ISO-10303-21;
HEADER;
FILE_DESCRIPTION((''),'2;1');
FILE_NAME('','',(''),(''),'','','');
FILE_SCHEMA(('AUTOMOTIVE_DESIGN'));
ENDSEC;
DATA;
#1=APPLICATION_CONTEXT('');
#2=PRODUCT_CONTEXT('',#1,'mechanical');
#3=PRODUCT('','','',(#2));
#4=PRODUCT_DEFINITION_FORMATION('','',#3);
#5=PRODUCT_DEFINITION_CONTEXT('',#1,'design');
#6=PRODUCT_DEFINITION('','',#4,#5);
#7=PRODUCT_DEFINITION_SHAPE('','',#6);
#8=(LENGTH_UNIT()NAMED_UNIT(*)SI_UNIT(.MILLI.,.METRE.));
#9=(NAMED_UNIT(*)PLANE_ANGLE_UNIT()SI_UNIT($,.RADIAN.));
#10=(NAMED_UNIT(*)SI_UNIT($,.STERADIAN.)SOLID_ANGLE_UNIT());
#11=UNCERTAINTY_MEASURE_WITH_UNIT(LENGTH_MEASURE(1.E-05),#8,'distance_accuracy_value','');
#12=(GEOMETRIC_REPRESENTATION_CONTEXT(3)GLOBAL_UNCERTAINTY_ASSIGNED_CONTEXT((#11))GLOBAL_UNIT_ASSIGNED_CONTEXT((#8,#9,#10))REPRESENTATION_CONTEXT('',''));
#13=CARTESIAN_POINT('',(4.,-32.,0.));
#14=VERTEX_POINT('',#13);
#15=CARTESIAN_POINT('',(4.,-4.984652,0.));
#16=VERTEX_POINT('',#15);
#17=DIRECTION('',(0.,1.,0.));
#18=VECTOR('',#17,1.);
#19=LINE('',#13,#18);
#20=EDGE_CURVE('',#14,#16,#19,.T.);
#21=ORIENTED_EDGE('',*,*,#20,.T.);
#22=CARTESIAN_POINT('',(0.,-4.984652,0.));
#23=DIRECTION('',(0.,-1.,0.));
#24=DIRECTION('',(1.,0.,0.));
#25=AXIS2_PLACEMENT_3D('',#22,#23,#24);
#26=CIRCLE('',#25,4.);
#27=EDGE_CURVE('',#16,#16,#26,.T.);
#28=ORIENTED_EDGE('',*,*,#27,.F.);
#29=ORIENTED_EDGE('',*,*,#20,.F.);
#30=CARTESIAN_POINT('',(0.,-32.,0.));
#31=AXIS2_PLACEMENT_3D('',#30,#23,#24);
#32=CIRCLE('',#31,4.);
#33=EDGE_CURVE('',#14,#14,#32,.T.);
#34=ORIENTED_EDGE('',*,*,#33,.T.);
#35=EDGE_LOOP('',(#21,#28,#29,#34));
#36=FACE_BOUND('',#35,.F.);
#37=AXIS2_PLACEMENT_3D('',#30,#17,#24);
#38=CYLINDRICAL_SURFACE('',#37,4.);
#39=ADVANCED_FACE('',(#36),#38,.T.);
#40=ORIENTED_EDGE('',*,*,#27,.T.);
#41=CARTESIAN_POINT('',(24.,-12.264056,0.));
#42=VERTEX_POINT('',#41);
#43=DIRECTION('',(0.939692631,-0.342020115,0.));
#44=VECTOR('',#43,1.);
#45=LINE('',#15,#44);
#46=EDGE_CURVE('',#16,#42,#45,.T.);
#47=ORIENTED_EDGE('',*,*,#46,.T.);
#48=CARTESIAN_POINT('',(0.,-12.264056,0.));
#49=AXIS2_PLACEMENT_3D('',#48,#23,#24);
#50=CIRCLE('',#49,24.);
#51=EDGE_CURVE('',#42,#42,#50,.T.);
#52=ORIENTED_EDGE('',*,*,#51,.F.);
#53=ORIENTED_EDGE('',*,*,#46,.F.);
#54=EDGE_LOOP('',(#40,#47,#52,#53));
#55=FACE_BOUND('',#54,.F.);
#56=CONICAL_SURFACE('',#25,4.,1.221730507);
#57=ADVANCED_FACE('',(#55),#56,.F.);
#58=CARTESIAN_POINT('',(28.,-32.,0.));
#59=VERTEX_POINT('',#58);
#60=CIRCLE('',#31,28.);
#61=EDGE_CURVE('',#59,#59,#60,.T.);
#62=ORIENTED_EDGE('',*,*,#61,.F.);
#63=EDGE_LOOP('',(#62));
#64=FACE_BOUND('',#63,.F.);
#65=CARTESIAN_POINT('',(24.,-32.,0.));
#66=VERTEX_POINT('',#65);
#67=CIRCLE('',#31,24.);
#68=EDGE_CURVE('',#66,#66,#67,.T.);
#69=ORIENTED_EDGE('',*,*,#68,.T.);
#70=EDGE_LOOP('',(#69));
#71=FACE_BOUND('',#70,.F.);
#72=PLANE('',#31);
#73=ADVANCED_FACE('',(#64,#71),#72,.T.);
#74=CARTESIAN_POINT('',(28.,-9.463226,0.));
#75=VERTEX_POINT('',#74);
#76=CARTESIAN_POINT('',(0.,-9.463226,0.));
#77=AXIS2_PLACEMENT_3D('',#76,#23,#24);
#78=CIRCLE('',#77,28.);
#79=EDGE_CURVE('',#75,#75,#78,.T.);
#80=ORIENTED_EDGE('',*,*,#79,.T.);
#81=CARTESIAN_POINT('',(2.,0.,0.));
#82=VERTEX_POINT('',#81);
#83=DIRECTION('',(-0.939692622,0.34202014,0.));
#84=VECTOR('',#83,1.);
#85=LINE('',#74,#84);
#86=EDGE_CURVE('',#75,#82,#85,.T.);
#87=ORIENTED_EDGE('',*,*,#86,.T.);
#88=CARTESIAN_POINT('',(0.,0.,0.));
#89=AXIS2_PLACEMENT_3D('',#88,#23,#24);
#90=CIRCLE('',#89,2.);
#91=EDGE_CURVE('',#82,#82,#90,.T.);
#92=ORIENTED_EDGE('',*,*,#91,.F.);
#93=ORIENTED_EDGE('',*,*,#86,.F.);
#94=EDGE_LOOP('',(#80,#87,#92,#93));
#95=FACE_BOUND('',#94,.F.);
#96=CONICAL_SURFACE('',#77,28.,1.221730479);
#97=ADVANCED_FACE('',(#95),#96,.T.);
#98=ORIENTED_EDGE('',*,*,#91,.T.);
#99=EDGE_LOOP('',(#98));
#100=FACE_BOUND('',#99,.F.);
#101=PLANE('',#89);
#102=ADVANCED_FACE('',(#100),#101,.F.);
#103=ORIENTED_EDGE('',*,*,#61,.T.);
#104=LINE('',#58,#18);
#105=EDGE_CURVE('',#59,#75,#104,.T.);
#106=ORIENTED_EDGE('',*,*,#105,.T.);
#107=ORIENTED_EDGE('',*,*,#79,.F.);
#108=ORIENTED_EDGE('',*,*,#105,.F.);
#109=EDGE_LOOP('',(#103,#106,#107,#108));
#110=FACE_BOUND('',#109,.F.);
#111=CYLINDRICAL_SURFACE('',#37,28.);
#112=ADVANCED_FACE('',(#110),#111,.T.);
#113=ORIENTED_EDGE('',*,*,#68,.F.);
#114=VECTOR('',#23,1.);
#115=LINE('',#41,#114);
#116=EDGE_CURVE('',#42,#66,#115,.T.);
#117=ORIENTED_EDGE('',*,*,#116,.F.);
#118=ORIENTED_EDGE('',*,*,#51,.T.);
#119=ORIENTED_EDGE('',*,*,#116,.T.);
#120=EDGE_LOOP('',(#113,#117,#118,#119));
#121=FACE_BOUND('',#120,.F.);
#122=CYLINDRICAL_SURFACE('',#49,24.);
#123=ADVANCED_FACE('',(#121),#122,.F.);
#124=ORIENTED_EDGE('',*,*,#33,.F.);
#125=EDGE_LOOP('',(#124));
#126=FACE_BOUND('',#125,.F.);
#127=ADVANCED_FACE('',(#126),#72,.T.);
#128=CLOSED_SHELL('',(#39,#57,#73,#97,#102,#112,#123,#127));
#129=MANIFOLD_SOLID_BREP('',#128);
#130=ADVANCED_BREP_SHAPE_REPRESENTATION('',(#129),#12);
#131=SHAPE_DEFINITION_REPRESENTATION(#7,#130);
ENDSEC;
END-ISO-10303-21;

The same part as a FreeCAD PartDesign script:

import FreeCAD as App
import Part
import Sketcher
from FreeCAD import Vector
Q = App.Units.Quantity


def add_polygon(sketch, points):
    """Adds a closed chain of lines whose ends are joined by coincident constraints."""
    first, n = sketch.GeometryCount, len(points)
    for a, b in zip(points, points[1:] + points[:1]):
        sketch.addGeometry(Part.LineSegment(App.Vector(*a, 0), App.Vector(*b, 0)), False)
    for i in range(n):
        sketch.addConstraint(Sketcher.Constraint("Coincident", first + i, 2, first + (i + 1) % n, 1))

doc = App.newDocument("Part")
params = doc.addObject("Spreadsheet::Sheet", "Params")
for row, (alias, value) in enumerate([
    ("sketch1_width", "2 mm"),
    ("sketch1_width2", "4 mm"),
    ("sketch1_height", "32 mm"),
    ("revolution_angle", "360 deg"),
], start=1):
    params.set(f"A{row}", alias)
    params.set(f"B{row}", "=" + value)
    params.setAlias(f"B{row}", alias)

body = doc.addObject("PartDesign::Body", "Body")

sketch1 = body.newObject("Sketcher::SketchObject", "Sketch")
sketch1.AttachmentSupport = (doc.getObject("XY_Plane"), [""])
sketch1.MapMode = "FlatFace"
add_polygon(sketch1, [(2, 0), (0, 0), (0, -32), (4, -32), (4, -4.984652), (24, -12.264056), (24, -32), (28, -32), (28, -9.463226)])
sketch1.addConstraint([
    Sketcher.Constraint("Horizontal", 0),
    Sketcher.Constraint("Vertical", 1),
    Sketcher.Constraint("Horizontal", 2),
    Sketcher.Constraint("Vertical", 3),
    Sketcher.Constraint("Vertical", 5),
    Sketcher.Constraint("Horizontal", 6),
    Sketcher.Constraint("Vertical", 7),
    Sketcher.Constraint("Coincident", 0, 2, -1, 1),
    Sketcher.Constraint("Parallel", 4, 8),
    Sketcher.Constraint("Horizontal", 2, 2, 5, 2),
    Sketcher.Constraint("Equal", 2, 6),
    Sketcher.Constraint("DistanceX", 0, 2, 0, 1, 2.0),
    Sketcher.Constraint("DistanceX", 2, 1, 2, 2, 4.0),
    Sketcher.Constraint("DistanceY", 1, 2, 1, 1, 32.0),
    Sketcher.Constraint("Angle", 4, Q("-19.999998 deg")),
    Sketcher.Constraint("DistanceX", -1, 1, 4, 2, 24.0),
    Sketcher.Constraint("DistanceY", 3, 1, 3, 2, 27.015348),
])
sketch1.setExpression("Constraints[20]", "Params.sketch1_width")
sketch1.setExpression("Constraints[21]", "Params.sketch1_width2")
sketch1.setExpression("Constraints[22]", "Params.sketch1_height")
revolution = body.newObject("PartDesign::Revolution", "Revolution")
revolution.Profile = sketch1
revolution.ReferenceAxis = (sketch1, ["V_Axis"])
revolution.setExpression("Angle", "Params.revolution_angle")

doc.recompute()
